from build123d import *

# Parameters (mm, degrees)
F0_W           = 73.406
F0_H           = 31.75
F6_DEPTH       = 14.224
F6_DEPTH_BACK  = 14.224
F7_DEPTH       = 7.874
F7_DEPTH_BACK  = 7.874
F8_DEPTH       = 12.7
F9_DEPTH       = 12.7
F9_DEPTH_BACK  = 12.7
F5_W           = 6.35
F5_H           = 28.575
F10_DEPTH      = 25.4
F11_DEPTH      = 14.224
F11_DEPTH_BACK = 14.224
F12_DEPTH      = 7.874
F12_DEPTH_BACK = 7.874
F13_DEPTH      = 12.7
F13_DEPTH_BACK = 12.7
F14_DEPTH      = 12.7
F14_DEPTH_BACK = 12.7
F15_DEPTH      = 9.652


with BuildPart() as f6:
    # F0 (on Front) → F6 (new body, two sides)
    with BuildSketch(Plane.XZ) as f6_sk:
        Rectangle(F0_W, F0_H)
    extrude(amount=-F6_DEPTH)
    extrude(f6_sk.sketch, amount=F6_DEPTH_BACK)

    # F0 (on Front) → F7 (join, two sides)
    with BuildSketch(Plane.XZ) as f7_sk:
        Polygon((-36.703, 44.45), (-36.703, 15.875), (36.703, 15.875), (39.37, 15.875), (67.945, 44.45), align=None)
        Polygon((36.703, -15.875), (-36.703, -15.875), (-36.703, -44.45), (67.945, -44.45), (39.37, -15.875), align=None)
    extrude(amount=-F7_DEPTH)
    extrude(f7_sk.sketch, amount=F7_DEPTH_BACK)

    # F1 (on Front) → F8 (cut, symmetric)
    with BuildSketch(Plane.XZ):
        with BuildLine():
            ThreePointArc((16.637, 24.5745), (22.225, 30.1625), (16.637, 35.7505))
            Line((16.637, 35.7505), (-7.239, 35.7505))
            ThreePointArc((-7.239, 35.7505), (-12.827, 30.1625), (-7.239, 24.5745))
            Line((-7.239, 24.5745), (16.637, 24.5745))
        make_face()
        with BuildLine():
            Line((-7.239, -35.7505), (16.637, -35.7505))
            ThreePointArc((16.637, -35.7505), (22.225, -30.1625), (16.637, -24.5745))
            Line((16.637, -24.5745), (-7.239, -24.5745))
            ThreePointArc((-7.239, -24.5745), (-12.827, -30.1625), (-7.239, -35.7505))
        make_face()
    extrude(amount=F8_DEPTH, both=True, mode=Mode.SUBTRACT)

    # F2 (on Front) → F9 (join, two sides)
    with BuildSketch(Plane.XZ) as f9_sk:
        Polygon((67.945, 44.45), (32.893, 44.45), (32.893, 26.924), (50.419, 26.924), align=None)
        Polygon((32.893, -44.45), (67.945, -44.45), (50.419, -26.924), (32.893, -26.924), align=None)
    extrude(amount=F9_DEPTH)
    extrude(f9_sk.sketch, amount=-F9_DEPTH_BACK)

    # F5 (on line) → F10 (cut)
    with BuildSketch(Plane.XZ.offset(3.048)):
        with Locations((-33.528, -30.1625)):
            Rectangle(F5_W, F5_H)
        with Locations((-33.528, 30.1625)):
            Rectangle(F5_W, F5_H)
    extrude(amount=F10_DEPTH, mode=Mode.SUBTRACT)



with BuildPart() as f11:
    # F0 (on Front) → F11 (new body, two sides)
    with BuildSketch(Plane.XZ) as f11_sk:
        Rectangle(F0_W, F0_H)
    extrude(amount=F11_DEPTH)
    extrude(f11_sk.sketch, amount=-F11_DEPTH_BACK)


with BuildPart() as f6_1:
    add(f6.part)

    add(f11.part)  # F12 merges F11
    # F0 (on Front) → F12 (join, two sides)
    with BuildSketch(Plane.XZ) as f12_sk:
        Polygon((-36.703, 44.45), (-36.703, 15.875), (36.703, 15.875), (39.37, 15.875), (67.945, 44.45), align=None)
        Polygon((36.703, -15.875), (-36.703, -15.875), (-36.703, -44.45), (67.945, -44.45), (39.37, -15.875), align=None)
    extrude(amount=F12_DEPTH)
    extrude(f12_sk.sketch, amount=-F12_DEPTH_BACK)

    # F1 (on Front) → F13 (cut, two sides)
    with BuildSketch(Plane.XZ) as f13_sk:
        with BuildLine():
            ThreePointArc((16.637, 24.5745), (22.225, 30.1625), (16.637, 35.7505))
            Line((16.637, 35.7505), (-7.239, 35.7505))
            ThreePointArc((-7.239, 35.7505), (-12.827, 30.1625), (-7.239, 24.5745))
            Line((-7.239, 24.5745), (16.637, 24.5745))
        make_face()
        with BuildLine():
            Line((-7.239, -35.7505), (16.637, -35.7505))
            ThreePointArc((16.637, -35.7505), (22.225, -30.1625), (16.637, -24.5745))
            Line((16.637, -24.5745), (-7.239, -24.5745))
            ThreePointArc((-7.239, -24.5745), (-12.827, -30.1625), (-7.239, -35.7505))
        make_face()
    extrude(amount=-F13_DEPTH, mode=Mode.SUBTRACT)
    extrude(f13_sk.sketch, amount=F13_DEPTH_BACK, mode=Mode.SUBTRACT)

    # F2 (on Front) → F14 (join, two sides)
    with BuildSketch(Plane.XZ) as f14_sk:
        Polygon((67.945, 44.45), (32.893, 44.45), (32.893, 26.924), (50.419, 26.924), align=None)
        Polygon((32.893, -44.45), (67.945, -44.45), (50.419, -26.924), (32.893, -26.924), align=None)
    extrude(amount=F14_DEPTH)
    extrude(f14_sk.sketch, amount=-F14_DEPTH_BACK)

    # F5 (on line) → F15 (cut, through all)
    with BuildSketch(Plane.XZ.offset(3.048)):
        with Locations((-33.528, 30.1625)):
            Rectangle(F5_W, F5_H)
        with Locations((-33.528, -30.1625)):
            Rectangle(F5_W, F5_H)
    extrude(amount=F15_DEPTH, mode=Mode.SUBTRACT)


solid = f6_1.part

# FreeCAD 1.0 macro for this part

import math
import FreeCAD as App
import Part
import Sketcher
from FreeCAD import Vector
Q = App.Units.Quantity


def add_polygon(sketch, points):
    """Adds a closed chain of lines whose ends are joined by coincident constraints."""
    first, n = sketch.GeometryCount, len(points)
    for a, b in zip(points, points[1:] + points[:1]):
        sketch.addGeometry(Part.LineSegment(App.Vector(*a, 0), App.Vector(*b, 0)), False)
    for i in range(n):
        sketch.addConstraint(Sketcher.Constraint("Coincident", first + i, 2, first + (i + 1) % n, 1))

doc = App.newDocument("Part")
body = doc.addObject("PartDesign::Body", "Body")

# Sketch on XZ plane
sketch1 = body.newObject("Sketcher::SketchObject", "Sketch")
sketch1.AttachmentSupport = (doc.getObject("XZ_Plane"), [""])
sketch1.MapMode = "FlatFace"
add_polygon(sketch1, [(-36.703, 15.875), (-36.703, -15.875), (36.703, -15.875), (36.703, 15.875)])  # lines 0-3
sketch1.addConstraint([
    Sketcher.Constraint("Vertical", 0),
    Sketcher.Constraint("Horizontal", 1),
    Sketcher.Constraint("Vertical", 2),
    Sketcher.Constraint("Horizontal", 3),
    Sketcher.Constraint("Symmetric", 0, 2, 2, 2, -1, 1),
    Sketcher.Constraint("DistanceX", 1, 1, 1, 2, Q("2.89 in")),
    Sketcher.Constraint("DistanceY", 0, 2, 0, 1, Q("1.25 in")),
])
pad1 = body.newObject("PartDesign::Pad", "Pad")
pad1.Profile = sketch1
pad1.Type = "TwoLengths"
pad1.Length = Q("0.56 in")
pad1.Length2 = Q("0.56 in")
pad1.Reversed = True

# Sketch on XZ plane
sketch2 = body.newObject("Sketcher::SketchObject", "Sketch001")
sketch2.AttachmentSupport = (doc.getObject("XZ_Plane"), [""])
sketch2.MapMode = "FlatFace"
add_polygon(sketch2, [(-36.703, 44.45), (-36.703, 15.875), (39.37, 15.875), (67.945, 44.45)])  # lines 0-3
add_polygon(sketch2, [(-36.703, -15.875), (-36.703, -44.45), (67.945, -44.45), (39.37, -15.875)])  # lines 4-7
sketch2.addConstraint([
    Sketcher.Constraint("Vertical", 0),
    Sketcher.Constraint("Horizontal", 1),
    Sketcher.Constraint("Horizontal", 3),
    Sketcher.Constraint("Vertical", 4),
    Sketcher.Constraint("Horizontal", 5),
    Sketcher.Constraint("Horizontal", 7),
    Sketcher.Constraint("Symmetric", 3, 2, 4, 2, -1),
    Sketcher.Constraint("Symmetric", 1, 2, 6, 2, -1),
    Sketcher.Constraint("Perpendicular", 2, 6),
    Sketcher.Constraint("Vertical", 2, 2, 5, 2),
    Sketcher.Constraint("DistanceX", 3, 2, 3, 1, Q("4.12 in")),
    Sketcher.Constraint("DistanceY", 4, 2, 3, 2, Q("3.5 in")),
    Sketcher.Constraint("DistanceX", 1, 1, 1, 2, Q("2.995 in")),
    Sketcher.Constraint("DistanceX", -1, 1, 1, 2, Q("1.55 in")),
])
pad2 = body.newObject("PartDesign::Pad", "Pad001")
pad2.Profile = sketch2
pad2.Type = "TwoLengths"
pad2.Length = Q("0.31 in")
pad2.Length2 = Q("0.31 in")
pad2.Reversed = True

# Sketch on XZ plane
sketch3 = body.newObject("Sketcher::SketchObject", "Sketch002")
sketch3.AttachmentSupport = (doc.getObject("XZ_Plane"), [""])
sketch3.MapMode = "FlatFace"
sketch3.addGeometry([
    Part.ArcOfCircle(Part.Circle(Vector(16.637, 30.1625, 0), Vector(0, 0, 1), 5.588), math.radians(-90), math.radians(90)),  # 0
    Part.LineSegment(Vector(16.637, 35.7505, 0), Vector(-7.239, 35.7505, 0)),  # 1
    Part.ArcOfCircle(Part.Circle(Vector(-7.239, 30.1625, 0), Vector(0, 0, 1), 5.588), math.radians(90), math.radians(270)),  # 2
    Part.LineSegment(Vector(-7.239, 24.5745, 0), Vector(16.637, 24.5745, 0)),  # 3
    Part.LineSegment(Vector(-7.239, -35.7505, 0), Vector(16.637, -35.7505, 0)),  # 4
    Part.ArcOfCircle(Part.Circle(Vector(16.637, -30.1625, 0), Vector(0, 0, 1), 5.588), math.radians(-90), math.radians(90)),  # 5
    Part.LineSegment(Vector(16.637, -24.5745, 0), Vector(-7.239, -24.5745, 0)),  # 6
    Part.ArcOfCircle(Part.Circle(Vector(-7.239, -30.1625, 0), Vector(0, 0, 1), 5.588), math.radians(90), math.radians(270)),  # 7
], False)
sketch3.addConstraint([
    Sketcher.Constraint("Tangent", 0, 2, 1, 1),
    Sketcher.Constraint("Tangent", 1, 2, 2, 1),
    Sketcher.Constraint("Tangent", 2, 2, 3, 1),
    Sketcher.Constraint("Tangent", 3, 2, 0, 1),
    Sketcher.Constraint("Tangent", 4, 2, 5, 1),
    Sketcher.Constraint("Tangent", 5, 2, 6, 1),
    Sketcher.Constraint("Tangent", 6, 2, 7, 1),
    Sketcher.Constraint("Tangent", 7, 2, 4, 1),
    Sketcher.Constraint("Horizontal", 1),
    Sketcher.Constraint("Horizontal", 3),
    Sketcher.Constraint("Horizontal", 4),
    Sketcher.Constraint("Horizontal", 6),
    Sketcher.Constraint("Equal", 2, 5),
    Sketcher.Constraint("Symmetric", 0, 3, 5, 3, -1),
    Sketcher.Constraint("Vertical", 2, 3, 7, 3),
    Sketcher.Constraint("Radius", 0, Q("0.22 in")),
    Sketcher.Constraint("DistanceX", 1, 2, 1, 1, Q("0.94 in")),
    Sketcher.Constraint("DistanceX", -1, 1, 0, 3, Q("0.655 in")),
    Sketcher.Constraint("DistanceY", -1, 1, 0, 3, Q("1.1875 in")),
])
pocket1 = body.newObject("PartDesign::Pocket", "Pocket")
pocket1.Profile = sketch3
pocket1.Length = Q("1 in")
pocket1.Midplane = True

# Sketch on XZ plane
sketch4 = body.newObject("Sketcher::SketchObject", "Sketch003")
sketch4.AttachmentSupport = (doc.getObject("XZ_Plane"), [""])
sketch4.MapMode = "FlatFace"
add_polygon(sketch4, [(67.945, 44.45), (32.893, 44.45), (32.893, 26.924), (50.419, 26.924)])  # lines 0-3
add_polygon(sketch4, [(32.893, -44.45), (67.945, -44.45), (50.419, -26.924), (32.893, -26.924)])  # lines 4-7
sketch4.addConstraint([
    Sketcher.Constraint("Horizontal", 0),
    Sketcher.Constraint("Vertical", 1),
    Sketcher.Constraint("Horizontal", 2),
    Sketcher.Constraint("Horizontal", 4),
    Sketcher.Constraint("Horizontal", 6),
    Sketcher.Constraint("Vertical", 7),
    Sketcher.Constraint("Symmetric", 3, 2, 4, 2, -1),
    Sketcher.Constraint("Symmetric", 2, 2, 5, 2, -1),
    Sketcher.Constraint("Perpendicular", 3, 5),
    Sketcher.Constraint("Vertical", 1, 2, 6, 2),
    Sketcher.Constraint("Equal", 6, 1),
    Sketcher.Constraint("DistanceX", 0, 2, 0, 1, Q("1.38 in")),
    Sketcher.Constraint("DistanceY", 4, 2, 3, 2, Q("3.5 in")),
    Sketcher.Constraint("DistanceX", -1, 1, 0, 2, Q("1.295 in")),
])
pad3 = body.newObject("PartDesign::Pad", "Pad002")
pad3.Profile = sketch4
pad3.Type = "TwoLengths"
pad3.Length = Q("0.5 in")
pad3.Length2 = Q("0.5 in")

# Sketch on XZ plane
sketch5 = body.newObject("Sketcher::SketchObject", "Sketch004")
sketch5.AttachmentSupport = (doc.getObject("XZ_Plane"), [""])
sketch5.MapMode = "FlatFace"
sketch5.AttachmentOffset = App.Placement(Vector(0, 0, 0.12 * 25.4), App.Rotation())
add_polygon(sketch5, [(-36.703, -15.875), (-36.703, -44.45), (-30.353, -44.45), (-30.353, -15.875)])  # lines 0-3
add_polygon(sketch5, [(-36.703, 44.45), (-36.703, 15.875), (-30.353, 15.875), (-30.353, 44.45)])  # lines 4-7
sketch5.addConstraint([
    Sketcher.Constraint("Vertical", 0),
    Sketcher.Constraint("Horizontal", 1),
    Sketcher.Constraint("Vertical", 2),
    Sketcher.Constraint("Horizontal", 3),
    Sketcher.Constraint("Vertical", 4),
    Sketcher.Constraint("Horizontal", 5),
    Sketcher.Constraint("Vertical", 6),
    Sketcher.Constraint("Horizontal", 7),
    Sketcher.Constraint("Symmetric", 3, 2, 4, 2, -1),
    Sketcher.Constraint("Symmetric", 1, 2, 6, 2, -1),
    Sketcher.Constraint("DistanceX", 1, 1, 1, 2, Q("0.25 in")),
    Sketcher.Constraint("DistanceY", 1, 2, 6, 2, Q("3.5 in")),
    Sketcher.Constraint("DistanceY", 0, 2, 0, 1, Q("1.125 in")),
    Sketcher.Constraint("DistanceX", 0, 2, -1, 1, Q("1.445 in")),
])
pocket2 = body.newObject("PartDesign::Pocket", "Pocket001")
pocket2.Profile = sketch5
pocket2.Length = Q("1 in")
pocket2.Reversed = True
body2 = doc.addObject("PartDesign::Body", "Body001")

# Sketch on XZ plane
sketch6 = body2.newObject("Sketcher::SketchObject", "Sketch005")
sketch6.AttachmentSupport = (doc.getObject("XZ_Plane001"), [""])
sketch6.MapMode = "FlatFace"
add_polygon(sketch6, [(-36.703, 15.875), (-36.703, -15.875), (36.703, -15.875), (36.703, 15.875)])  # lines 0-3
sketch6.addConstraint([
    Sketcher.Constraint("Vertical", 0),
    Sketcher.Constraint("Horizontal", 1),
    Sketcher.Constraint("Vertical", 2),
    Sketcher.Constraint("Horizontal", 3),
    Sketcher.Constraint("Symmetric", 0, 2, 2, 2, -1, 1),
    Sketcher.Constraint("DistanceX", 1, 1, 1, 2, Q("2.89 in")),
    Sketcher.Constraint("DistanceY", 0, 2, 0, 1, Q("1.25 in")),
])
pad4 = body2.newObject("PartDesign::Pad", "Pad003")
pad4.Profile = sketch6
pad4.Type = "TwoLengths"
pad4.Length = Q("0.56 in")
pad4.Length2 = Q("0.56 in")
doc.recompute()

boolean = body.newObject("PartDesign::Boolean", "Boolean")
boolean.Type = "Fuse"
boolean.addObjects([body2])

# Sketch on XZ plane
sketch7 = body.newObject("Sketcher::SketchObject", "Sketch006")
sketch7.AttachmentSupport = (doc.getObject("XZ_Plane"), [""])
sketch7.MapMode = "FlatFace"
add_polygon(sketch7, [(-36.703, 44.45), (-36.703, 15.875), (39.37, 15.875), (67.945, 44.45)])  # lines 0-3
add_polygon(sketch7, [(-36.703, -15.875), (-36.703, -44.45), (67.945, -44.45), (39.37, -15.875)])  # lines 4-7
sketch7.addConstraint([
    Sketcher.Constraint("Vertical", 0),
    Sketcher.Constraint("Horizontal", 1),
    Sketcher.Constraint("Horizontal", 3),
    Sketcher.Constraint("Vertical", 4),
    Sketcher.Constraint("Horizontal", 5),
    Sketcher.Constraint("Horizontal", 7),
    Sketcher.Constraint("Symmetric", 3, 2, 4, 2, -1),
    Sketcher.Constraint("Symmetric", 1, 2, 6, 2, -1),
    Sketcher.Constraint("Perpendicular", 2, 6),
    Sketcher.Constraint("Vertical", 2, 2, 5, 2),
    Sketcher.Constraint("DistanceX", 3, 2, 3, 1, Q("4.12 in")),
    Sketcher.Constraint("DistanceY", 4, 2, 3, 2, Q("3.5 in")),
    Sketcher.Constraint("DistanceX", 1, 1, 1, 2, Q("2.995 in")),
    Sketcher.Constraint("DistanceX", -1, 1, 1, 2, Q("1.55 in")),
])
pad5 = body.newObject("PartDesign::Pad", "Pad004")
pad5.Profile = sketch7
pad5.Type = "TwoLengths"
pad5.Length = Q("0.31 in")
pad5.Length2 = Q("0.31 in")

# Sketch on XZ plane
sketch8 = body.newObject("Sketcher::SketchObject", "Sketch007")
sketch8.AttachmentSupport = (doc.getObject("XZ_Plane"), [""])
sketch8.MapMode = "FlatFace"
sketch8.addGeometry([
    Part.ArcOfCircle(Part.Circle(Vector(16.637, 30.1625, 0), Vector(0, 0, 1), 5.588), math.radians(-90), math.radians(90)),  # 0
    Part.LineSegment(Vector(16.637, 35.7505, 0), Vector(-7.239, 35.7505, 0)),  # 1
    Part.ArcOfCircle(Part.Circle(Vector(-7.239, 30.1625, 0), Vector(0, 0, 1), 5.588), math.radians(90), math.radians(270)),  # 2
    Part.LineSegment(Vector(-7.239, 24.5745, 0), Vector(16.637, 24.5745, 0)),  # 3
    Part.LineSegment(Vector(-7.239, -35.7505, 0), Vector(16.637, -35.7505, 0)),  # 4
    Part.ArcOfCircle(Part.Circle(Vector(16.637, -30.1625, 0), Vector(0, 0, 1), 5.588), math.radians(-90), math.radians(90)),  # 5
    Part.LineSegment(Vector(16.637, -24.5745, 0), Vector(-7.239, -24.5745, 0)),  # 6
    Part.ArcOfCircle(Part.Circle(Vector(-7.239, -30.1625, 0), Vector(0, 0, 1), 5.588), math.radians(90), math.radians(270)),  # 7
], False)
sketch8.addConstraint([
    Sketcher.Constraint("Tangent", 0, 2, 1, 1),
    Sketcher.Constraint("Tangent", 1, 2, 2, 1),
    Sketcher.Constraint("Tangent", 2, 2, 3, 1),
    Sketcher.Constraint("Tangent", 3, 2, 0, 1),
    Sketcher.Constraint("Tangent", 4, 2, 5, 1),
    Sketcher.Constraint("Tangent", 5, 2, 6, 1),
    Sketcher.Constraint("Tangent", 6, 2, 7, 1),
    Sketcher.Constraint("Tangent", 7, 2, 4, 1),
    Sketcher.Constraint("Horizontal", 1),
    Sketcher.Constraint("Horizontal", 3),
    Sketcher.Constraint("Horizontal", 4),
    Sketcher.Constraint("Horizontal", 6),
    Sketcher.Constraint("Equal", 2, 5),
    Sketcher.Constraint("Symmetric", 0, 3, 5, 3, -1),
    Sketcher.Constraint("Vertical", 2, 3, 7, 3),
    Sketcher.Constraint("Radius", 0, Q("0.22 in")),
    Sketcher.Constraint("DistanceX", 1, 2, 1, 1, Q("0.94 in")),
    Sketcher.Constraint("DistanceX", -1, 1, 0, 3, Q("0.655 in")),
    Sketcher.Constraint("DistanceY", -1, 1, 0, 3, Q("1.1875 in")),
])
pocket3 = body.newObject("PartDesign::Pocket", "Pocket002")
pocket3.Profile = sketch8
pocket3.Type = "ThroughAll"
pocket3.Midplane = True

# Sketch on XZ plane
sketch9 = body.newObject("Sketcher::SketchObject", "Sketch008")
sketch9.AttachmentSupport = (doc.getObject("XZ_Plane"), [""])
sketch9.MapMode = "FlatFace"
add_polygon(sketch9, [(67.945, 44.45), (32.893, 44.45), (32.893, 26.924), (50.419, 26.924)])  # lines 0-3
add_polygon(sketch9, [(32.893, -44.45), (67.945, -44.45), (50.419, -26.924), (32.893, -26.924)])  # lines 4-7
sketch9.addConstraint([
    Sketcher.Constraint("Horizontal", 0),
    Sketcher.Constraint("Vertical", 1),
    Sketcher.Constraint("Horizontal", 2),
    Sketcher.Constraint("Horizontal", 4),
    Sketcher.Constraint("Horizontal", 6),
    Sketcher.Constraint("Vertical", 7),
    Sketcher.Constraint("Symmetric", 3, 2, 4, 2, -1),
    Sketcher.Constraint("Symmetric", 2, 2, 5, 2, -1),
    Sketcher.Constraint("Perpendicular", 3, 5),
    Sketcher.Constraint("Vertical", 1, 2, 6, 2),
    Sketcher.Constraint("Equal", 6, 1),
    Sketcher.Constraint("DistanceX", 0, 2, 0, 1, Q("1.38 in")),
    Sketcher.Constraint("DistanceY", 4, 2, 3, 2, Q("3.5 in")),
    Sketcher.Constraint("DistanceX", -1, 1, 0, 2, Q("1.295 in")),
])
pad6 = body.newObject("PartDesign::Pad", "Pad005")
pad6.Profile = sketch9
pad6.Type = "TwoLengths"
pad6.Length = Q("0.5 in")
pad6.Length2 = Q("0.5 in")

# Sketch on XZ plane
sketch10 = body.newObject("Sketcher::SketchObject", "Sketch009")
sketch10.AttachmentSupport = (doc.getObject("XZ_Plane"), [""])
sketch10.MapMode = "FlatFace"
sketch10.AttachmentOffset = App.Placement(Vector(0, 0, 0.12 * 25.4), App.Rotation())
add_polygon(sketch10, [(-36.703, 44.45), (-36.703, 15.875), (-30.353, 15.875), (-30.353, 44.45)])  # lines 0-3
add_polygon(sketch10, [(-36.703, -15.875), (-36.703, -44.45), (-30.353, -44.45), (-30.353, -15.875)])  # lines 4-7
sketch10.addConstraint([
    Sketcher.Constraint("Vertical", 0),
    Sketcher.Constraint("Horizontal", 1),
    Sketcher.Constraint("Vertical", 2),
    Sketcher.Constraint("Horizontal", 3),
    Sketcher.Constraint("Vertical", 4),
    Sketcher.Constraint("Horizontal", 5),
    Sketcher.Constraint("Vertical", 6),
    Sketcher.Constraint("Horizontal", 7),
    Sketcher.Constraint("Symmetric", 3, 2, 4, 2, -1),
    Sketcher.Constraint("Symmetric", 1, 2, 6, 2, -1),
    Sketcher.Constraint("DistanceX", 1, 1, 1, 2, Q("0.25 in")),
    Sketcher.Constraint("DistanceY", 4, 2, 3, 2, Q("3.5 in")),
    Sketcher.Constraint("DistanceY", 0, 2, 0, 1, Q("1.125 in")),
    Sketcher.Constraint("DistanceX", 0, 2, -1, 1, Q("1.445 in")),
])
pocket4 = body.newObject("PartDesign::Pocket", "Pocket003")
pocket4.Profile = sketch10
pocket4.Type = "ThroughAll"
pocket4.Reversed = True

doc.recompute()
